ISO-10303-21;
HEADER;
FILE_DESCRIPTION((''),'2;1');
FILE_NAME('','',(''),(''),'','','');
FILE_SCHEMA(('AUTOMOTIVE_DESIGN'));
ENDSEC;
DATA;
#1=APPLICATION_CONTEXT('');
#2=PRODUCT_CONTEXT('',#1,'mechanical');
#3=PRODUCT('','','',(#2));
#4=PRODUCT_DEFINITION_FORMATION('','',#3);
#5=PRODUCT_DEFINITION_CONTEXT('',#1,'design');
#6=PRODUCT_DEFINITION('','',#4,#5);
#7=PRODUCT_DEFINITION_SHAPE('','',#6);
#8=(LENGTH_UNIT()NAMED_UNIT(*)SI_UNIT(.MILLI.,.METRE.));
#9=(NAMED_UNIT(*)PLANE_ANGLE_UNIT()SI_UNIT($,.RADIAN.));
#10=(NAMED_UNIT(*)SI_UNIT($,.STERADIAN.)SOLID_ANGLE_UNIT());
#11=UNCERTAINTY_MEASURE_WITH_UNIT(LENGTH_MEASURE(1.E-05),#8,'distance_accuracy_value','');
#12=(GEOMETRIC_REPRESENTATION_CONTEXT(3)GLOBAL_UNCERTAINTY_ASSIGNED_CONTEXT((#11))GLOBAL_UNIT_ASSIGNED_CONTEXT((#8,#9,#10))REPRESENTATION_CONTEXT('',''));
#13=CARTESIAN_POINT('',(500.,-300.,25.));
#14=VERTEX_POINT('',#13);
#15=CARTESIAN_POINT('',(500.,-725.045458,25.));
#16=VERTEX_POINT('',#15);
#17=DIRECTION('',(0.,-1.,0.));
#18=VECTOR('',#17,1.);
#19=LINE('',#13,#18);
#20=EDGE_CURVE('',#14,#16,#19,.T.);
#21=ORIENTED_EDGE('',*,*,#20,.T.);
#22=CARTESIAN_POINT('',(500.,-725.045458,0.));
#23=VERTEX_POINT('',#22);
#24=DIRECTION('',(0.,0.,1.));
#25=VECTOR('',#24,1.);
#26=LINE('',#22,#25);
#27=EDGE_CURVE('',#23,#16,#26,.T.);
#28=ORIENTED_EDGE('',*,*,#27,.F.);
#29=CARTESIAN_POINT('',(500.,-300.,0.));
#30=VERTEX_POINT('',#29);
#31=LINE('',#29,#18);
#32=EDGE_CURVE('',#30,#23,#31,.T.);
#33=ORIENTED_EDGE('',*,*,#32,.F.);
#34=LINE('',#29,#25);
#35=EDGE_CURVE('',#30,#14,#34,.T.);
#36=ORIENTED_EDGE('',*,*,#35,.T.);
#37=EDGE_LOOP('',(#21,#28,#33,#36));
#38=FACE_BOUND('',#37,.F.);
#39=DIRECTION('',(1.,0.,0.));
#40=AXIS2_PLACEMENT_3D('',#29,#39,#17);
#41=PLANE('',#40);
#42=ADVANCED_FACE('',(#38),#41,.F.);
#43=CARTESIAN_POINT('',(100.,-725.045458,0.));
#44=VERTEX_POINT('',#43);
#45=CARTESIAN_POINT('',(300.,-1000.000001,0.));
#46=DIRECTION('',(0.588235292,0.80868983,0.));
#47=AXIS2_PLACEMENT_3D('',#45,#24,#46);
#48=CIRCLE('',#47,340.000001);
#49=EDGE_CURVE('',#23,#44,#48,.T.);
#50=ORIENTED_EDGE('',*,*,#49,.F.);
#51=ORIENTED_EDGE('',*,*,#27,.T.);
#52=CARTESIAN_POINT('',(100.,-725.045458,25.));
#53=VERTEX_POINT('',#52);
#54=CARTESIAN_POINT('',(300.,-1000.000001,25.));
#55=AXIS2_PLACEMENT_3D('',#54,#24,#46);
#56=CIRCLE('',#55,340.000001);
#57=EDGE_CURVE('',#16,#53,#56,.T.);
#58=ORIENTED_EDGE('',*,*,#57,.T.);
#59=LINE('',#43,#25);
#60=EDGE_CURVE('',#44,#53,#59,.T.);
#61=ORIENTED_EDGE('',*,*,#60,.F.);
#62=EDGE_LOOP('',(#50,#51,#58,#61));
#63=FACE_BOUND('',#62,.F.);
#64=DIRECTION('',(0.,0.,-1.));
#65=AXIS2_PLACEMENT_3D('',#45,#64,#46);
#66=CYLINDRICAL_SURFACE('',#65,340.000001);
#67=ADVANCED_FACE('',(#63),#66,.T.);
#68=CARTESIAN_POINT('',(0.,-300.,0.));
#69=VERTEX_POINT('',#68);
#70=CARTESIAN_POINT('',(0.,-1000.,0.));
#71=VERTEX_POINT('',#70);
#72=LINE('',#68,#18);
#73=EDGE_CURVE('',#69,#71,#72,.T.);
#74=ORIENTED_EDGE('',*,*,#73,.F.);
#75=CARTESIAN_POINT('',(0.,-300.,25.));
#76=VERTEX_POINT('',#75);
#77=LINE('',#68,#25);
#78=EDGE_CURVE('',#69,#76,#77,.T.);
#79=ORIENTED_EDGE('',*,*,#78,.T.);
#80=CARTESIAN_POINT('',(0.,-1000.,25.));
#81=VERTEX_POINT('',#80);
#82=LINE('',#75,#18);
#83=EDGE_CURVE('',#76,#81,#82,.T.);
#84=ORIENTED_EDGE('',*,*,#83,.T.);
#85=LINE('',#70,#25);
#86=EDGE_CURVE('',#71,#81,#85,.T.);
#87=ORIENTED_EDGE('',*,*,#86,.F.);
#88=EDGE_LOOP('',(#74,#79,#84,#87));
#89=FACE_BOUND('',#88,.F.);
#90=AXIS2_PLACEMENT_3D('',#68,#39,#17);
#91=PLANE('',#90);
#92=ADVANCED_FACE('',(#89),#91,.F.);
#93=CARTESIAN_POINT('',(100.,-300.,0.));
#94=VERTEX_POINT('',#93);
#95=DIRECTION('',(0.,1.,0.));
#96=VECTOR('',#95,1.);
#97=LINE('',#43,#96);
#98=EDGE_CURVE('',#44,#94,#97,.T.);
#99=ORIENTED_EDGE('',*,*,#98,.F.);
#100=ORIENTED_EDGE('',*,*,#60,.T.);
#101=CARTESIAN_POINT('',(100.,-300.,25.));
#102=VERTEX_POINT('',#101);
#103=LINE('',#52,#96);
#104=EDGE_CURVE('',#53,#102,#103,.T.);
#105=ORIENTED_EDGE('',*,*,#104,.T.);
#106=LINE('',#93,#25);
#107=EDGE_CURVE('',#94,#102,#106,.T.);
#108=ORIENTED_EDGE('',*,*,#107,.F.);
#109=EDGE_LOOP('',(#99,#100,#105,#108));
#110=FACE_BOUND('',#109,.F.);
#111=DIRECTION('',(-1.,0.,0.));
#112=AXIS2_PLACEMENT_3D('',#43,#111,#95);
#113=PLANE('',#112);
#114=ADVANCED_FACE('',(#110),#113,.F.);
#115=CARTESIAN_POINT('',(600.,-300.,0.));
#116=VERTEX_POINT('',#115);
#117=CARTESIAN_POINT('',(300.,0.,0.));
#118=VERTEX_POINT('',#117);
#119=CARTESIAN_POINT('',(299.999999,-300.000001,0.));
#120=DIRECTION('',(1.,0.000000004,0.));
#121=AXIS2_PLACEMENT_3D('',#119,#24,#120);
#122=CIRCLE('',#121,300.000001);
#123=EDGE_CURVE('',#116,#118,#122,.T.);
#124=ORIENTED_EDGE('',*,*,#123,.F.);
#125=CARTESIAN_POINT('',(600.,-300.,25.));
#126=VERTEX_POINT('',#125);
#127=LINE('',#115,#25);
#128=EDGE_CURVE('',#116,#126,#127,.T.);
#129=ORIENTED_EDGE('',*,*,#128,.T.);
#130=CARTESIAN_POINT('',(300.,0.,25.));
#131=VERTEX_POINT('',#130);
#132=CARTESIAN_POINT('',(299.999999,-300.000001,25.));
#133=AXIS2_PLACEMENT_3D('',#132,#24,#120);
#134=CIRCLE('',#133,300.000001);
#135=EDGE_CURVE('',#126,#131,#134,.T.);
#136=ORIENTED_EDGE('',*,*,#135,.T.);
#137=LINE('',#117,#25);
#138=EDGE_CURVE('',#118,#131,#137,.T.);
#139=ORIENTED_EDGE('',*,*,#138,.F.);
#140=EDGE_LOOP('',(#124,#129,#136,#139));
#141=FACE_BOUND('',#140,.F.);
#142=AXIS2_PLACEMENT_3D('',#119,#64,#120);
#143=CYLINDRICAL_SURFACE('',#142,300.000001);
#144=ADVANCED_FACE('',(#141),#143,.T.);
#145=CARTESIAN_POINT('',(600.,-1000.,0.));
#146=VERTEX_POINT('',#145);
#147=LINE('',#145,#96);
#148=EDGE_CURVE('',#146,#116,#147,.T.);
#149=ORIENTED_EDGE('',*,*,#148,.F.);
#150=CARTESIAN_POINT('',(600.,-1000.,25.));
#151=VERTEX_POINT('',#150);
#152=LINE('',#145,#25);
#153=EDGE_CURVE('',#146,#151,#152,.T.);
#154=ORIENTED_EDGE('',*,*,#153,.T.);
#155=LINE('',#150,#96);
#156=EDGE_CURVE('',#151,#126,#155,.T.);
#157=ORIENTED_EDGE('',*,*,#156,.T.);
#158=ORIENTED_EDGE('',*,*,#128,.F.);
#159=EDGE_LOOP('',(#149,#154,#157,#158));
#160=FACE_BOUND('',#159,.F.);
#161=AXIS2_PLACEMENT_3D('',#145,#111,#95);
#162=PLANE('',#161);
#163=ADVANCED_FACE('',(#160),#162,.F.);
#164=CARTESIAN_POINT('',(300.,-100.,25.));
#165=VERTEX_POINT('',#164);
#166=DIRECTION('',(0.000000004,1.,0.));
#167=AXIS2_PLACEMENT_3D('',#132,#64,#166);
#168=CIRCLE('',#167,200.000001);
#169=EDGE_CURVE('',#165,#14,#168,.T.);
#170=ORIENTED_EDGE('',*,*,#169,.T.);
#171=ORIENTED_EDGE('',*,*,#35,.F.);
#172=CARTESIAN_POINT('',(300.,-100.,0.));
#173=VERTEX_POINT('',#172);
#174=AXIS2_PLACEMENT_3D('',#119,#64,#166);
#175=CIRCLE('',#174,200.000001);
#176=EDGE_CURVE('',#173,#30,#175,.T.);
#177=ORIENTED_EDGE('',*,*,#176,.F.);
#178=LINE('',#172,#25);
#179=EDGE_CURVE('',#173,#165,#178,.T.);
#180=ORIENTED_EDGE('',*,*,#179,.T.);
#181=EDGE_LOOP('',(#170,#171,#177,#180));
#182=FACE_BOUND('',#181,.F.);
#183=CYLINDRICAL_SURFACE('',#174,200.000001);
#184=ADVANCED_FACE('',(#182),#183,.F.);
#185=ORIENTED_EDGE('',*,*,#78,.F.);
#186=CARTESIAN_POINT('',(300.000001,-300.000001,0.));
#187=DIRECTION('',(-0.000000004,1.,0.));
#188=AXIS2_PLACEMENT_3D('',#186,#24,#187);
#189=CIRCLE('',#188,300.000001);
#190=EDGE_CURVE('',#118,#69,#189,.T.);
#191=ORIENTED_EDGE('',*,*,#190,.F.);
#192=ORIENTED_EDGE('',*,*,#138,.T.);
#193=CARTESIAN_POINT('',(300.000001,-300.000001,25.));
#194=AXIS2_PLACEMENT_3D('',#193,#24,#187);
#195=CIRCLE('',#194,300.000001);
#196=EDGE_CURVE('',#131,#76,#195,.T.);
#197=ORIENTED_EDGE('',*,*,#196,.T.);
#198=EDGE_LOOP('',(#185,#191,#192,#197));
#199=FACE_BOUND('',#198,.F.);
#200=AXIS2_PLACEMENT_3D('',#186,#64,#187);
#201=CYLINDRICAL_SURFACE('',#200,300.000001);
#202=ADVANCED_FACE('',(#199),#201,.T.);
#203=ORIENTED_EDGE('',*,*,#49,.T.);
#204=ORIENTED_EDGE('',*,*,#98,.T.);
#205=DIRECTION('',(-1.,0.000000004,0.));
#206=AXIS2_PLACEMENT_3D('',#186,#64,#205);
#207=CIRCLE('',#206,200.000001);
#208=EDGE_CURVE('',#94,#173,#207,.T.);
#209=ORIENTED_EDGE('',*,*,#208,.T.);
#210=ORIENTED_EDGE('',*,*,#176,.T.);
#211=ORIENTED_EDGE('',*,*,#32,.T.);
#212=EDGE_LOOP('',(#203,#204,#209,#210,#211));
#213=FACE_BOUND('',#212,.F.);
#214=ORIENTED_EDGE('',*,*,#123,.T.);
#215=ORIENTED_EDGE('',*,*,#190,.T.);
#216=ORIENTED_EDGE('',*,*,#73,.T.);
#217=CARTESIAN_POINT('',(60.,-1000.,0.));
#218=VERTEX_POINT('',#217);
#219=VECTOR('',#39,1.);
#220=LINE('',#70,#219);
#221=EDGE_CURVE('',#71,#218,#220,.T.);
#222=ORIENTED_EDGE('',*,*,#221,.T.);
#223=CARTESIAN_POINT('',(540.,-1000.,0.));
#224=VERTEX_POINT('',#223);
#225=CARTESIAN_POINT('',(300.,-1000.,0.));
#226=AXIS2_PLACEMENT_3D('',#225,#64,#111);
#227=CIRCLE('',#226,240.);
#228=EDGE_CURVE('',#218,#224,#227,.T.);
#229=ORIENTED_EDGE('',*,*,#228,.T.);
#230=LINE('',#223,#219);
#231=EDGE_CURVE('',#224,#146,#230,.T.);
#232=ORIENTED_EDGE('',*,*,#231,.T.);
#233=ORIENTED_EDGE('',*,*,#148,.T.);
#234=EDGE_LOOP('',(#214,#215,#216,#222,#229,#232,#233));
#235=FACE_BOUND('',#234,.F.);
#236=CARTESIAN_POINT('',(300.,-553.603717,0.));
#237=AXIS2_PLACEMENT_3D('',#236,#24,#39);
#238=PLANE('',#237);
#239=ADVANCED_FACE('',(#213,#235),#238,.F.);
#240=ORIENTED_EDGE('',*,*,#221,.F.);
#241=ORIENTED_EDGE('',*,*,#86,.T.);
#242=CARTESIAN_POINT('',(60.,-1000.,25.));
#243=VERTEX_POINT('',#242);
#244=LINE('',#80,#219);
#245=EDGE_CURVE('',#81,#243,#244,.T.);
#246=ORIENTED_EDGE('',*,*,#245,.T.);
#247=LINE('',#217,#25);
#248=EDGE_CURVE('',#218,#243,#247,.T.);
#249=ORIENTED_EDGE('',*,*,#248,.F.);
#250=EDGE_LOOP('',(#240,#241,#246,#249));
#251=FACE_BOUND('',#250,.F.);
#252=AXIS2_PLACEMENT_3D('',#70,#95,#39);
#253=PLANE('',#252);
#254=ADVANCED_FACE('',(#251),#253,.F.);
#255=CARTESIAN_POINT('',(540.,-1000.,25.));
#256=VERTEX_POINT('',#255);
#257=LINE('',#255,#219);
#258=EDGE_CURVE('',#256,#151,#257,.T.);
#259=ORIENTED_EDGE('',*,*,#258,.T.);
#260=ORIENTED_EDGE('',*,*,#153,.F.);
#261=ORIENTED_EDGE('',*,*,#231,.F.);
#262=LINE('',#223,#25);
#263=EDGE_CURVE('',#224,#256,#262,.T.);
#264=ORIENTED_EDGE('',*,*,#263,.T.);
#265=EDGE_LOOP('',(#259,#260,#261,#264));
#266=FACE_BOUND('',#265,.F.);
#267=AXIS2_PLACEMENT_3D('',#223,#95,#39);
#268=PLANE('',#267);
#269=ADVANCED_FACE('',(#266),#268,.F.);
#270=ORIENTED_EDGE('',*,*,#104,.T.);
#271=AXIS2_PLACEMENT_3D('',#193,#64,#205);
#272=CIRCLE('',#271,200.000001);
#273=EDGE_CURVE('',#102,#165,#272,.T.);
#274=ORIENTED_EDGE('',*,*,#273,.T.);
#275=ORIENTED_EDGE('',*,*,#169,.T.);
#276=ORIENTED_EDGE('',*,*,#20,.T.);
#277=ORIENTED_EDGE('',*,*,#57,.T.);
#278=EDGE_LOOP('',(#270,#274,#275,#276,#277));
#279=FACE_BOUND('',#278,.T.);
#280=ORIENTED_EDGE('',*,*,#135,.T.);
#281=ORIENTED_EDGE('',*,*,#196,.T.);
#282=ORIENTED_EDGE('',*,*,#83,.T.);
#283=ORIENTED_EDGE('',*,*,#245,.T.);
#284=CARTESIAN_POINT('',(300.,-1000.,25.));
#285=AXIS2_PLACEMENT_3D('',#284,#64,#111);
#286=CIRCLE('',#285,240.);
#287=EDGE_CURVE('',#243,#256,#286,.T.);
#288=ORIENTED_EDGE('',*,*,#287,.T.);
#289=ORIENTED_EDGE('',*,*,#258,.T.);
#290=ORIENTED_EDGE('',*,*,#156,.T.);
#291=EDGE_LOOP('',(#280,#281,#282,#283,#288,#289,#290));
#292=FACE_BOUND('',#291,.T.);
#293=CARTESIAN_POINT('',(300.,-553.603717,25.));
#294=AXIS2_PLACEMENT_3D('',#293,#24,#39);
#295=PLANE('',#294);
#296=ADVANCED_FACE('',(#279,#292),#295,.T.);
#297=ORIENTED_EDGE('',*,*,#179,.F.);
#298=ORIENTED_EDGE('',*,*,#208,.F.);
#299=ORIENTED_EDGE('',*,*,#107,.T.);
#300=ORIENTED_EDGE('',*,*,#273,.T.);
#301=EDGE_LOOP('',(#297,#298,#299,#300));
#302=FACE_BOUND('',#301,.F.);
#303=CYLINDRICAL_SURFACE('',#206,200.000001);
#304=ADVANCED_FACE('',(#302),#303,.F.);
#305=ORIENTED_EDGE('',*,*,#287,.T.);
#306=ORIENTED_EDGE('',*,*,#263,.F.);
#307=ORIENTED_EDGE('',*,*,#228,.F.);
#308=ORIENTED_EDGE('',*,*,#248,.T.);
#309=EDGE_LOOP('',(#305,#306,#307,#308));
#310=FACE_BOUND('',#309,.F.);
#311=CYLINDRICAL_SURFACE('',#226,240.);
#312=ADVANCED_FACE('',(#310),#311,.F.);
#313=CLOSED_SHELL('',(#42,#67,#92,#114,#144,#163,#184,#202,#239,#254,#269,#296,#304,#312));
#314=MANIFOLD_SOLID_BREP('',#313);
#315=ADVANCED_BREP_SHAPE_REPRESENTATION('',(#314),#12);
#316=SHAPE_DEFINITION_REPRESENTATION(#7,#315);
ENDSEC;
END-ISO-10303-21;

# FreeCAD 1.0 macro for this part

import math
import FreeCAD as App
import Part
import Sketcher

doc = App.newDocument("Part")
body = doc.addObject("PartDesign::Body", "Body")

sketch1 = body.newObject("Sketcher::SketchObject", "Sketch")
sketch1.AttachmentSupport = (doc.getObject("XY_Plane"), [""])
sketch1.MapMode = "FlatFace"
sketch1.addGeometry([
    Part.ArcOfCircle(Part.Circle(App.Vector(300.000001, -300.000001, 0), App.Vector(0, 0, 1), 300.000001), math.radians(90), math.radians(180)),
    Part.LineSegment(App.Vector(0, -300, 0), App.Vector(0, -1000, 0)),
    Part.LineSegment(App.Vector(0, -1000, 0), App.Vector(60, -1000, 0)),
    Part.ArcOfCircle(Part.Circle(App.Vector(300, -1000, 0), App.Vector(0, 0, 1), 240), math.radians(0), math.radians(180)),
    Part.LineSegment(App.Vector(540, -1000, 0), App.Vector(600, -1000, 0)),
    Part.LineSegment(App.Vector(600, -1000, 0), App.Vector(600, -300, 0)),
    Part.ArcOfCircle(Part.Circle(App.Vector(299.999999, -300.000001, 0), App.Vector(0, 0, 1), 300.000001), math.radians(0), math.radians(90)),
    Part.LineSegment(App.Vector(100, -725.045458, 0), App.Vector(100, -300, 0)),
    Part.ArcOfCircle(Part.Circle(App.Vector(300.000001, -300.000001, 0), App.Vector(0, 0, 1), 200.000001), math.radians(90), math.radians(180)),
    Part.ArcOfCircle(Part.Circle(App.Vector(299.999999, -300.000001, 0), App.Vector(0, 0, 1), 200.000001), math.radians(0), math.radians(90)),
    Part.LineSegment(App.Vector(500, -300, 0), App.Vector(500, -725.045458, 0)),
    Part.ArcOfCircle(Part.Circle(App.Vector(300, -1000.000001, 0), App.Vector(0, 0, 1), 340.000001), math.radians(53.968121), math.radians(126.031879)),
], False)
sketch1.addConstraint([
    Sketcher.Constraint("Tangent", 0, 2, 1, 1),
    Sketcher.Constraint("Coincident", 1, 2, 2, 1),
    Sketcher.Constraint("Coincident", 2, 2, 3, 2),
    Sketcher.Constraint("Coincident", 3, 1, 4, 1),
    Sketcher.Constraint("Coincident", 4, 2, 5, 1),
    Sketcher.Constraint("Tangent", 5, 2, 6, 1),
    Sketcher.Constraint("Tangent", 6, 2, 0, 1),
    Sketcher.Constraint("Tangent", 7, 2, 8, 2),
    Sketcher.Constraint("Tangent", 8, 1, 9, 2),
    Sketcher.Constraint("Tangent", 9, 1, 10, 1),
    Sketcher.Constraint("Coincident", 10, 2, 11, 1),
    Sketcher.Constraint("Coincident", 11, 2, 7, 1),
    Sketcher.Constraint("Vertical", 1),
    Sketcher.Constraint("Horizontal", 2),
    Sketcher.Constraint("Horizontal", 4),
    Sketcher.Constraint("Vertical", 5),
    Sketcher.Constraint("Vertical", 7),
    Sketcher.Constraint("Vertical", 10),
    Sketcher.Constraint("Coincident", 8, 3, 0, 3),
    Sketcher.Constraint("Coincident", 11, 3, 3, 3),
    Sketcher.Constraint("Equal", 0, 6),
    Sketcher.Constraint("Equal", 8, 9),
    Sketcher.Constraint("PointOnObject", 0, 2, -2),
    Sketcher.Constraint("PointOnObject", 6, 2, -1),
    Sketcher.Constraint("Horizontal", 11, 3, 1, 2),
    Sketcher.Constraint("Horizontal", 2, 2, 3, 1),
    Sketcher.Constraint("Horizontal", 10, 2, 11, 2),
    Sketcher.Constraint("Vertical", 11, 3, 6, 2),
    Sketcher.Constraint("Vertical", 6, 2, 8, 1),
    Sketcher.Constraint("Radius", 0, 300.000001),
    Sketcher.Constraint("Radius", 3, 240.0),
    Sketcher.Constraint("Radius", 8, 200.000001),
    Sketcher.Constraint("Radius", 11, 340.000001),
    Sketcher.Constraint("DistanceY", 1, 2, 1, 1, 700.0),
])
pad1 = body.newObject("PartDesign::Pad", "Pad")
pad1.Profile = sketch1
pad1.Length = 25

doc.recompute()
